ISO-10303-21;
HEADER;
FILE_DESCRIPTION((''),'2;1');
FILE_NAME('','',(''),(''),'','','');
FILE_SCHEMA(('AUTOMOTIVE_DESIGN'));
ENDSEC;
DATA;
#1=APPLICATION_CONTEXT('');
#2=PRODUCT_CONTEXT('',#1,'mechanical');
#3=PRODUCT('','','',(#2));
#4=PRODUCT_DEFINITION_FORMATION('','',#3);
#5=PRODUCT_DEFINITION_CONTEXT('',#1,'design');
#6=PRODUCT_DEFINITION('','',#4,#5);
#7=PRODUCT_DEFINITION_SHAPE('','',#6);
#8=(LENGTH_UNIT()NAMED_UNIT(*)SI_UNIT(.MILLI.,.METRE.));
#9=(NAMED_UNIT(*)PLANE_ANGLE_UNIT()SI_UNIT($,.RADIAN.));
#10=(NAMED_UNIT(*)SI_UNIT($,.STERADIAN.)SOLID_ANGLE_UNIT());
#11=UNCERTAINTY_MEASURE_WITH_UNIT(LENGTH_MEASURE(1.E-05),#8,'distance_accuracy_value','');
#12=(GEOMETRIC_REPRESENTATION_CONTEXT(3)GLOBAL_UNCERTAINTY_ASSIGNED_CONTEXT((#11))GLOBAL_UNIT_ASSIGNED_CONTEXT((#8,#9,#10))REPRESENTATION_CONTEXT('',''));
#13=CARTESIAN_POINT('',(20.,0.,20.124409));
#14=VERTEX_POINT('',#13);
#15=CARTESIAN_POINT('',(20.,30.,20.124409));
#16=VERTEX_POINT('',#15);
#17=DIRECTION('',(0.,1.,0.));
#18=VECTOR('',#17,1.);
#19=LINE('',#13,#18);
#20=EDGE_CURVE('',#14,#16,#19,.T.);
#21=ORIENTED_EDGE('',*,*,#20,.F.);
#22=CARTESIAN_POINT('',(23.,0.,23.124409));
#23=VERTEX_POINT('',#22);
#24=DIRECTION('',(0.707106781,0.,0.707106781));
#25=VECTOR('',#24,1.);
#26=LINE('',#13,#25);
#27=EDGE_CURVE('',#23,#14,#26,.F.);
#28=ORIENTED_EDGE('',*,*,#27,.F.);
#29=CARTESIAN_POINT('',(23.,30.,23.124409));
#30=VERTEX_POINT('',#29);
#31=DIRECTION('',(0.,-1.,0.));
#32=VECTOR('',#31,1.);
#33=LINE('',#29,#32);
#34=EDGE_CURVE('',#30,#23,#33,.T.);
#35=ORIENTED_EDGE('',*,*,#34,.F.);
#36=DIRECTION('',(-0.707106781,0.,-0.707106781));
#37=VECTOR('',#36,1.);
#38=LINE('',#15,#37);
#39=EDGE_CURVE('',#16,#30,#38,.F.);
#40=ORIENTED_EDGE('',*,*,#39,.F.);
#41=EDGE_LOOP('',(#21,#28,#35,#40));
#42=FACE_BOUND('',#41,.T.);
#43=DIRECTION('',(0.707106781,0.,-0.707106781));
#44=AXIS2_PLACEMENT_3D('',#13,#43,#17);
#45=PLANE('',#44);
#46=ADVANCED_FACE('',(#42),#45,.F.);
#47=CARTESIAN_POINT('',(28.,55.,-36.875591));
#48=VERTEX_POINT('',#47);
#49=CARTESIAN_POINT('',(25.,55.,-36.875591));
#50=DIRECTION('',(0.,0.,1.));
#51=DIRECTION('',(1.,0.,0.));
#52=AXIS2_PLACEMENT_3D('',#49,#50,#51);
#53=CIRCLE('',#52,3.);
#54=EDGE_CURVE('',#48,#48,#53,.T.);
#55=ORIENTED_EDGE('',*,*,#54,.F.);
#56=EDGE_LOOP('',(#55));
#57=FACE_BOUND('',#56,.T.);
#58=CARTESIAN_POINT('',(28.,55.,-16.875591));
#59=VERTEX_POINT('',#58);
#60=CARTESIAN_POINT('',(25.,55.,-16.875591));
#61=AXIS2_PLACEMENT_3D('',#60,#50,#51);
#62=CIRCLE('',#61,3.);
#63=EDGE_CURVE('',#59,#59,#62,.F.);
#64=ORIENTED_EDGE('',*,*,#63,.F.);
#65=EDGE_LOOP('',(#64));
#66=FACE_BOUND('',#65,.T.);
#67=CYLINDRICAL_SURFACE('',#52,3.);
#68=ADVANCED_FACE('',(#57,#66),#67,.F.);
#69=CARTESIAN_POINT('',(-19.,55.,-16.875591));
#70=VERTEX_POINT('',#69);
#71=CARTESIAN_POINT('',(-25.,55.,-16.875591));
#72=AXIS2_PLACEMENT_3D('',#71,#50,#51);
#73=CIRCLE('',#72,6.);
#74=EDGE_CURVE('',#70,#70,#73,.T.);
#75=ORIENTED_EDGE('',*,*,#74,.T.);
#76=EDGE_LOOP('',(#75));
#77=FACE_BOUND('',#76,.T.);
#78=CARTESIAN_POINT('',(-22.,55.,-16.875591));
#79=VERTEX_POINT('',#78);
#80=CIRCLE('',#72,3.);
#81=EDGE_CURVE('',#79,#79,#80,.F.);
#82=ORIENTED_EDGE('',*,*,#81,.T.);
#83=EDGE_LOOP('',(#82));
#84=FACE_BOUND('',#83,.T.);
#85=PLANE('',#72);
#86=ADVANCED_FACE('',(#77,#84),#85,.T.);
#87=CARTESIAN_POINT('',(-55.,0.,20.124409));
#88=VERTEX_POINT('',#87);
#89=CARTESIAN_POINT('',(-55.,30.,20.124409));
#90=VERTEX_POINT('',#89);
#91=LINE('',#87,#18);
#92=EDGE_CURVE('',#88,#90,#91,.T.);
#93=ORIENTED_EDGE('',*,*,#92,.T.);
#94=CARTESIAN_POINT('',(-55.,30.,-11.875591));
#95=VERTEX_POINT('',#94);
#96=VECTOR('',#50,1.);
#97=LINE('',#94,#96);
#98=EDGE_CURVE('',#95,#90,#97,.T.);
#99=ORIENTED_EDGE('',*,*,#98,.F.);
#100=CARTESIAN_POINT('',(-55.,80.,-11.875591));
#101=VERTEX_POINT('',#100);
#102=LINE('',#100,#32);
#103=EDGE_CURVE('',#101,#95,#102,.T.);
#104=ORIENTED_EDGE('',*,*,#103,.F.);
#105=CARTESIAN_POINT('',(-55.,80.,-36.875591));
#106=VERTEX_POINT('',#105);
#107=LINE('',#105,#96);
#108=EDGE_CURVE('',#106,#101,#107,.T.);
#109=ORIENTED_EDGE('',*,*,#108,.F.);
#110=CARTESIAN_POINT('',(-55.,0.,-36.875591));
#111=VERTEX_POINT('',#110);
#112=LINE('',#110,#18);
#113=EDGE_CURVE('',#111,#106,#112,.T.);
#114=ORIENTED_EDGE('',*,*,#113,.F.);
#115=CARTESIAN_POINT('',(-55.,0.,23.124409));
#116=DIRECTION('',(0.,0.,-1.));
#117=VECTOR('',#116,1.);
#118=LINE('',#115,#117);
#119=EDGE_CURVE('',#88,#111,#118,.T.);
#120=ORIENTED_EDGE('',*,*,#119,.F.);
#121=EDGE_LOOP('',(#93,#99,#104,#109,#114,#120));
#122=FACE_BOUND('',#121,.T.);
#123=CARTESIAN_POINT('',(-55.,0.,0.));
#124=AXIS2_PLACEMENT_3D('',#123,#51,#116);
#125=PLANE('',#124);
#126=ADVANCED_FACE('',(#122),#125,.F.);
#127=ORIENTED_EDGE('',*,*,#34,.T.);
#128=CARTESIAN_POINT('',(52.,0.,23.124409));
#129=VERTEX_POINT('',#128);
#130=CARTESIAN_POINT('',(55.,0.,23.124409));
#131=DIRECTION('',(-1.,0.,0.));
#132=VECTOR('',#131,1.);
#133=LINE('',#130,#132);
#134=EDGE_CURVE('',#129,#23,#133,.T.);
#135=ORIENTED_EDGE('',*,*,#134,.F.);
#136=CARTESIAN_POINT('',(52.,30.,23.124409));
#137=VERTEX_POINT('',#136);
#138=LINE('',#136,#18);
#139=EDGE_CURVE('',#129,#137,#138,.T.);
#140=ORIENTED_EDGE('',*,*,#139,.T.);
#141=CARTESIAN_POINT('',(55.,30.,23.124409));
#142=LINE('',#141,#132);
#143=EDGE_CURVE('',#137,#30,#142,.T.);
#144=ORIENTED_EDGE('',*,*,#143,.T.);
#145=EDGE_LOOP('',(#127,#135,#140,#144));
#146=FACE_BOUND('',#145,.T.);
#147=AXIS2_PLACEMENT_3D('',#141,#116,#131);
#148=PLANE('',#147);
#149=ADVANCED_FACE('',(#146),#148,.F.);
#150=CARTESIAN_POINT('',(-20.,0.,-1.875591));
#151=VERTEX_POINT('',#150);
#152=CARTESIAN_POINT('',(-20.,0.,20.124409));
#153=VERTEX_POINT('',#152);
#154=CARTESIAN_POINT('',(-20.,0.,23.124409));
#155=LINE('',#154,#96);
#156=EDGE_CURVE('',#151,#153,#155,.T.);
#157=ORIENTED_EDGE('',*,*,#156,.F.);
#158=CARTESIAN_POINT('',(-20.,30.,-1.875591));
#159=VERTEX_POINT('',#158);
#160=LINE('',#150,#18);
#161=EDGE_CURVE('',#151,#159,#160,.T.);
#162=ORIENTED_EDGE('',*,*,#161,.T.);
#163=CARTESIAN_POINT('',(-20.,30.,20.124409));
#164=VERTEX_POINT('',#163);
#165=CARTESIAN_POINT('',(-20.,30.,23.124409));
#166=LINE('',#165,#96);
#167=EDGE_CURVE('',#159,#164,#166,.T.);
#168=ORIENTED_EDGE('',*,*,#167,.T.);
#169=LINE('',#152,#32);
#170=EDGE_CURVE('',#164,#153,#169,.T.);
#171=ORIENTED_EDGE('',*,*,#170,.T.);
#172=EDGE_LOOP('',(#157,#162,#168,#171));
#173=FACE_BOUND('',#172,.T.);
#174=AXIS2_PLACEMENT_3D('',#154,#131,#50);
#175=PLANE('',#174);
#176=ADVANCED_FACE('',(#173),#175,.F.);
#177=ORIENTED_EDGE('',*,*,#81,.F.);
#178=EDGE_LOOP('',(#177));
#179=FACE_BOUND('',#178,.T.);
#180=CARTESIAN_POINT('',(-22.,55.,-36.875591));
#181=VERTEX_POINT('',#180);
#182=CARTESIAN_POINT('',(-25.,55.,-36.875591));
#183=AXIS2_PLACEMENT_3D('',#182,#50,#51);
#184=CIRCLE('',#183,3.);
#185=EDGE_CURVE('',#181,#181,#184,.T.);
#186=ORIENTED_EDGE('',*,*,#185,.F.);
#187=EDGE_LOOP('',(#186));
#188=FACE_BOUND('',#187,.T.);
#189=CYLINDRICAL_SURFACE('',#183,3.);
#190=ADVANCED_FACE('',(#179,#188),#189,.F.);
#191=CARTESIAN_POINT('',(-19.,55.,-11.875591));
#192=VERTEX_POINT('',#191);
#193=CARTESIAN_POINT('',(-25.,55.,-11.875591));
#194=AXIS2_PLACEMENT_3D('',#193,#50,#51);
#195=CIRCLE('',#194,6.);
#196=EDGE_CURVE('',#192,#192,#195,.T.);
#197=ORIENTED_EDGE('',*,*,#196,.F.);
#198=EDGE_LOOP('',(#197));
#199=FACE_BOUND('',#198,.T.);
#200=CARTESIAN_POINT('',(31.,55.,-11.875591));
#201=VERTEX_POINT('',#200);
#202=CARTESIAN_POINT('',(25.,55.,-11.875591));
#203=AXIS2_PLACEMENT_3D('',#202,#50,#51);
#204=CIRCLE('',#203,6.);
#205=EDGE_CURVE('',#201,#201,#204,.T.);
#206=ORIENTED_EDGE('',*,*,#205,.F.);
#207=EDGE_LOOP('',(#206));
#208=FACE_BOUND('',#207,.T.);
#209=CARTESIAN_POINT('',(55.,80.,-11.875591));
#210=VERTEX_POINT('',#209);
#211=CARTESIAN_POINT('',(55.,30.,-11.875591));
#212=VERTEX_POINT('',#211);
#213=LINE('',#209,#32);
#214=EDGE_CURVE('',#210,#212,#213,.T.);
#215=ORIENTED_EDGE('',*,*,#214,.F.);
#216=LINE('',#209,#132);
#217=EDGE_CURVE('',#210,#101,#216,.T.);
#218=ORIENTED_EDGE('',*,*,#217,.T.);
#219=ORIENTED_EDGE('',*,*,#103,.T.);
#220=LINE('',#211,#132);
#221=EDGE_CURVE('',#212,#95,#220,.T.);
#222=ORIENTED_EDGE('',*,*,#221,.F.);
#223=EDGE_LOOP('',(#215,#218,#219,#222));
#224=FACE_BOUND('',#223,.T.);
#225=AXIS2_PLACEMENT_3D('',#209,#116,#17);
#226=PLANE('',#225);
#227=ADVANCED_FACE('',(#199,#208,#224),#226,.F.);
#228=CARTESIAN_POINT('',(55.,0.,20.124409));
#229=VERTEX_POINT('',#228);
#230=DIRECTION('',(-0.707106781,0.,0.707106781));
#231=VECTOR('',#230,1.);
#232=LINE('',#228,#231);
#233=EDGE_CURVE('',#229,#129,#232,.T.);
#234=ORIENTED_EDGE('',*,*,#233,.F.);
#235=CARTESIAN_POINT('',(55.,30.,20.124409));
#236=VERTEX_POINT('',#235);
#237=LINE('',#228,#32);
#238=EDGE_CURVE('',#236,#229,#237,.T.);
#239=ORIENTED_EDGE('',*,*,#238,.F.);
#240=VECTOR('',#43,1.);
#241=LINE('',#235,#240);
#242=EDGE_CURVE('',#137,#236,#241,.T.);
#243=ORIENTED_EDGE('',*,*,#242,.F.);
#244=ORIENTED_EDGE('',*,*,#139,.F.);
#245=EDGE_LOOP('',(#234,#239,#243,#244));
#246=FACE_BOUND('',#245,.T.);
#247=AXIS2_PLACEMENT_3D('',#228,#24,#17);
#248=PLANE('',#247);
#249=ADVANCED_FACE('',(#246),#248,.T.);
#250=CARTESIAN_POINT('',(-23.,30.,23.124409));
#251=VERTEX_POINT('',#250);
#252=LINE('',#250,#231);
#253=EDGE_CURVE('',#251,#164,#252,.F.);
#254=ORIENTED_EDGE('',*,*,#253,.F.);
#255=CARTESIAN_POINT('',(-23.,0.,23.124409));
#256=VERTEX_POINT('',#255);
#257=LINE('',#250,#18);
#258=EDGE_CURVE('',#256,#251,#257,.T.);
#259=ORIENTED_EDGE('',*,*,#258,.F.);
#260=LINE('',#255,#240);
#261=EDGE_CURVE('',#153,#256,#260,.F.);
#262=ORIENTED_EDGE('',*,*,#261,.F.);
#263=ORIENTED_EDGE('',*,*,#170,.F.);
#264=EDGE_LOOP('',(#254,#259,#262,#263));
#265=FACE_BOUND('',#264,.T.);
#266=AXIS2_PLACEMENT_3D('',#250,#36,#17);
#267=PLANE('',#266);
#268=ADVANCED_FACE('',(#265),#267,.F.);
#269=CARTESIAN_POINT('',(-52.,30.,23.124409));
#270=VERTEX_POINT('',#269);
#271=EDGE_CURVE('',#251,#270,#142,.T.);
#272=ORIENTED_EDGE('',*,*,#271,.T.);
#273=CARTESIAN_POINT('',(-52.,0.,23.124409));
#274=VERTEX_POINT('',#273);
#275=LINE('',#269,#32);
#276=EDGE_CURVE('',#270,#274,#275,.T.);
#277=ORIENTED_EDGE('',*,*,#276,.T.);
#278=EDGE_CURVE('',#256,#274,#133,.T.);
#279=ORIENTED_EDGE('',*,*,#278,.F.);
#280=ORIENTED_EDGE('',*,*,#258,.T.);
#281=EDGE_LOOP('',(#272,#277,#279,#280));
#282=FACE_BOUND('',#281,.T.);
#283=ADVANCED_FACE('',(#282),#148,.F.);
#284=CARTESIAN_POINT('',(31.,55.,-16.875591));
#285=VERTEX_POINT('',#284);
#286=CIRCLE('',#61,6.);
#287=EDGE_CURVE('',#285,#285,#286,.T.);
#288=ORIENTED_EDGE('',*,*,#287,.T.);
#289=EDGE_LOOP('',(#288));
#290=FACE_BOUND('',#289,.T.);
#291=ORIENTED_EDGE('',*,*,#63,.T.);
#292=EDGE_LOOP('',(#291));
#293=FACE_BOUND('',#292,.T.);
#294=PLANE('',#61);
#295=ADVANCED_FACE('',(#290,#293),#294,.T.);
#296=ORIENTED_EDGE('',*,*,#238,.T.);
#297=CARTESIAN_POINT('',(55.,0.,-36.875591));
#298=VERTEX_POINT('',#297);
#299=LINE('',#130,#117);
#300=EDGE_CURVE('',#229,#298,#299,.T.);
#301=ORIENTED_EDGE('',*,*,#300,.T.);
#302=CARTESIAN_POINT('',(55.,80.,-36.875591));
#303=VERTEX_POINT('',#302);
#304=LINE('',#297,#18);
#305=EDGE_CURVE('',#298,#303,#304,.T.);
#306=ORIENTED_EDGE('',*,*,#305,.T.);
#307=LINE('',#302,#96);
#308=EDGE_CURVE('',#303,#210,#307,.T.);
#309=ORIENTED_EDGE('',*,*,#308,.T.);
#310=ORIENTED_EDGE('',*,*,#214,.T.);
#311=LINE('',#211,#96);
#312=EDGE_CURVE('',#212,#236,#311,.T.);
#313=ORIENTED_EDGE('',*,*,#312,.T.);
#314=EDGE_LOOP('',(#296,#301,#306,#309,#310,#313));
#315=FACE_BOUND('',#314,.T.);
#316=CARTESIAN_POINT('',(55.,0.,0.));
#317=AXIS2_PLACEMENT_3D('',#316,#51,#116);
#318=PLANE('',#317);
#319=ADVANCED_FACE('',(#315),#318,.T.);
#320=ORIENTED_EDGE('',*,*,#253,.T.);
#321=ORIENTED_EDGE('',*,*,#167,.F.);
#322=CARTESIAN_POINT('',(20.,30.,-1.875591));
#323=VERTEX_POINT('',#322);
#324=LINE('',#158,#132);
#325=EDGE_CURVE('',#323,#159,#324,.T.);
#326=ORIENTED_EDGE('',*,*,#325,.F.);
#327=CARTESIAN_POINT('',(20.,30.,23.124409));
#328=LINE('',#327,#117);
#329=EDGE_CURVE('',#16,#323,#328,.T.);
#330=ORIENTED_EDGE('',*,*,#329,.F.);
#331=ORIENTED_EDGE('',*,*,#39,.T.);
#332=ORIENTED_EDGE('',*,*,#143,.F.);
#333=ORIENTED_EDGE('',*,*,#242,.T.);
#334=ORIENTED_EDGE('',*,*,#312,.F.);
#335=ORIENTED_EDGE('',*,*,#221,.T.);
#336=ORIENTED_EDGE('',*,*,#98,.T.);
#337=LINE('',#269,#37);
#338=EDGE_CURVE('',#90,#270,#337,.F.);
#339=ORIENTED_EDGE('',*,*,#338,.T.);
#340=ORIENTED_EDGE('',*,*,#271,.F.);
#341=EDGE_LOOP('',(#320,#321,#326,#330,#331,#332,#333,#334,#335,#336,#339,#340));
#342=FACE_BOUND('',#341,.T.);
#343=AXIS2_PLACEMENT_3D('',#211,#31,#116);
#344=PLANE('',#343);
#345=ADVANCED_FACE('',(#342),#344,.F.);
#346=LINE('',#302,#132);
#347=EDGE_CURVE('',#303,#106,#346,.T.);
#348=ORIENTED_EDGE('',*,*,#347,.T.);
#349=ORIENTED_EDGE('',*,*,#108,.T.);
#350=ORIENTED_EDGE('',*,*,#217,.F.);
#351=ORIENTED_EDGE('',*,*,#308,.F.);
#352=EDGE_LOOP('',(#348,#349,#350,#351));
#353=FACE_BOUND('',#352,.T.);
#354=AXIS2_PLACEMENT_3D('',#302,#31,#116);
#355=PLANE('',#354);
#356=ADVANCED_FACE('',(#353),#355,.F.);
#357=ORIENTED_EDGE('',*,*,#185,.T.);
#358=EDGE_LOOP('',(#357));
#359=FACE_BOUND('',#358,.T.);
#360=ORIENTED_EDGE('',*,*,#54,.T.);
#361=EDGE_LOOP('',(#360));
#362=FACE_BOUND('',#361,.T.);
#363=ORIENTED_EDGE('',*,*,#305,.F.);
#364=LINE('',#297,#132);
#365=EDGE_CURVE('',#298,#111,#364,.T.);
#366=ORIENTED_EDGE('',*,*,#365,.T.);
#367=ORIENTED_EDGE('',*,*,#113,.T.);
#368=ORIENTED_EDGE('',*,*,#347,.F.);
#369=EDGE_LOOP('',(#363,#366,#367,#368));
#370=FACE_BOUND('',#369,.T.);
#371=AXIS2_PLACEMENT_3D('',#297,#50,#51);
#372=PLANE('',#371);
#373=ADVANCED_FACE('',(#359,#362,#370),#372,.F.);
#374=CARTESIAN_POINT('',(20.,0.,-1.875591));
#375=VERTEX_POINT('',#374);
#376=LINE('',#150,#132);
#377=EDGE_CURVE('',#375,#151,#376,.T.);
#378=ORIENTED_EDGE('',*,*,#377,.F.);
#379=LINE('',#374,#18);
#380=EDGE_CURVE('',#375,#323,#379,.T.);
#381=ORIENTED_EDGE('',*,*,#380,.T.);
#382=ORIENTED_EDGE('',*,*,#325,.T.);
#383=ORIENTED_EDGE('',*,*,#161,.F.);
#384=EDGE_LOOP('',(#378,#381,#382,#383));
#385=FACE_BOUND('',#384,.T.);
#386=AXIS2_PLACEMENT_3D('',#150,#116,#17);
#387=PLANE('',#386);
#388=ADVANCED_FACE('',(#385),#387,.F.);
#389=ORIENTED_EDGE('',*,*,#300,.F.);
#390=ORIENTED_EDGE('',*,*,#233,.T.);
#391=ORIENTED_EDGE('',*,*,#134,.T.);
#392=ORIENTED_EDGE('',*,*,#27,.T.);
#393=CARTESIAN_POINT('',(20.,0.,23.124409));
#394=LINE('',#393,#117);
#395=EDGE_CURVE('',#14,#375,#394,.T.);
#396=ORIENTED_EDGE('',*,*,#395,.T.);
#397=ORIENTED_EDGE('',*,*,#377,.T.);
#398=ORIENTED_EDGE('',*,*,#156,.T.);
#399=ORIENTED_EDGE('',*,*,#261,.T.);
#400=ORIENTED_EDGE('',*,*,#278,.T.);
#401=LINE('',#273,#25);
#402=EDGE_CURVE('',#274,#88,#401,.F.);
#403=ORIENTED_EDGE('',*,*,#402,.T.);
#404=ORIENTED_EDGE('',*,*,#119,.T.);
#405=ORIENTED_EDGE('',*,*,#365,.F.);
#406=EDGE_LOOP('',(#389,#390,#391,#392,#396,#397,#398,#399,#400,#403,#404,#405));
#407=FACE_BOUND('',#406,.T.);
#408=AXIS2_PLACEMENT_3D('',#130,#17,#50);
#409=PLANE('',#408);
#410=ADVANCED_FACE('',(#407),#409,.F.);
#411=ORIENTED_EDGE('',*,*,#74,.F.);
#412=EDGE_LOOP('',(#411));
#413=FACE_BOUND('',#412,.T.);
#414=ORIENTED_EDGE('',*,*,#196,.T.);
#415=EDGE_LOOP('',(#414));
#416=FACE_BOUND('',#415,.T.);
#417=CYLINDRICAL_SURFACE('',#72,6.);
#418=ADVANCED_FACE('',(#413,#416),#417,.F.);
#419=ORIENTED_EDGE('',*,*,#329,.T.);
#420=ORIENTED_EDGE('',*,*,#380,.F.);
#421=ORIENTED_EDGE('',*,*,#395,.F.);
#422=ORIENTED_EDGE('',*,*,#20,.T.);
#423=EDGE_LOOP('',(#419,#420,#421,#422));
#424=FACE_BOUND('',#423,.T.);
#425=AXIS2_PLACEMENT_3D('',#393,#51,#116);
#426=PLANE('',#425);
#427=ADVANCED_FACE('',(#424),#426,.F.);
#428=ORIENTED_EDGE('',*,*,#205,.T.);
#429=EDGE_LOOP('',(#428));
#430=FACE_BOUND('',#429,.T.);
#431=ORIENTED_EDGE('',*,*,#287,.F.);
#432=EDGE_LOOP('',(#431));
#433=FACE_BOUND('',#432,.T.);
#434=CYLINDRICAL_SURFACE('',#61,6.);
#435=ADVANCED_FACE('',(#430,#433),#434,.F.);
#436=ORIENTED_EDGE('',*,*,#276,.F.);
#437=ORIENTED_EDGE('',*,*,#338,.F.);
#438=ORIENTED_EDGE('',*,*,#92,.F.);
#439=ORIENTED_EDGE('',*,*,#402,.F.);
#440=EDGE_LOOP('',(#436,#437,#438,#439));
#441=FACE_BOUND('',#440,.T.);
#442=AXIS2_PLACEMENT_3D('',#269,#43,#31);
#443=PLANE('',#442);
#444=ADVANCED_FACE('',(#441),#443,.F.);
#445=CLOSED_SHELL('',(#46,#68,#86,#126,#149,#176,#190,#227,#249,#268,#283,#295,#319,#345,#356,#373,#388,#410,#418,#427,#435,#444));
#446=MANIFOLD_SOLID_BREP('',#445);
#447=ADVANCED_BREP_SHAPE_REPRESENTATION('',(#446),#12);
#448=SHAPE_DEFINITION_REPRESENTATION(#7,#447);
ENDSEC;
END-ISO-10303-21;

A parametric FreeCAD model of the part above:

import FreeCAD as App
import Part
import Sketcher
from FreeCAD import Vector


def edges_at(feature, points):
    """Names of the edges that pass closest to the given points."""
    edges = feature.Shape.Edges
    near = lambda p: min(range(len(edges)), key=lambda i: edges[i].distToShape(Part.Vertex(*p))[0])
    return sorted({f"Edge{near(p) + 1}" for p in points})


def add_polygon(sketch, points):
    """Adds a closed chain of lines whose ends are joined by coincident constraints."""
    first, n = sketch.GeometryCount, len(points)
    for a, b in zip(points, points[1:] + points[:1]):
        sketch.addGeometry(Part.LineSegment(App.Vector(*a, 0), App.Vector(*b, 0)), False)
    for i in range(n):
        sketch.addConstraint(Sketcher.Constraint("Coincident", first + i, 2, first + (i + 1) % n, 1))

doc = App.newDocument("Part")
params = doc.addObject("Spreadsheet::Sheet", "Params")
for row, (alias, value) in enumerate([
    ("sketch1_width", "80 mm"),
    ("sketch1_width2", "50 mm"),
    ("sketch1_height", "60 mm"),
    ("sketch1_height2", "25 mm"),
    ("pad1_length", "110 mm"),
    ("sketch2_width", "40 mm"),
    ("sketch2_height", "25 mm"),
    ("sketch3_diameter", "6 mm"),
    ("sketch4_diameter", "12 mm"),
    ("pocket3_length", "5 mm"),
    ("chamfer_size", "3 mm"),
], start=1):
    params.set(f"A{row}", alias)
    params.set(f"B{row}", "=" + value)
    params.setAlias(f"B{row}", alias)

body = doc.addObject("PartDesign::Body", "Body")

sketch1 = body.newObject("Sketcher::SketchObject", "Sketch")
sketch1.AttachmentSupport = (doc.getObject("YZ_Plane"), [""])
sketch1.MapMode = "FlatFace"
add_polygon(sketch1, [(0, 23.124409), (0, -36.875591), (80, -36.875591), (80, -11.875591), (30, -11.875591), (30, 23.124409)])
sketch1.addConstraint([
    Sketcher.Constraint("Vertical", 0),
    Sketcher.Constraint("Horizontal", 1),
    Sketcher.Constraint("Vertical", 2),
    Sketcher.Constraint("Horizontal", 3),
    Sketcher.Constraint("Vertical", 4),
    Sketcher.Constraint("Horizontal", 5),
    Sketcher.Constraint("PointOnObject", 0, 2, -2),
    Sketcher.Constraint("DistanceX", 1, 1, 1, 2, 80.0),
    Sketcher.Constraint("DistanceX", 3, 2, 3, 1, 50.0),
    Sketcher.Constraint("DistanceY", 0, 2, 0, 1, 60.0),
    Sketcher.Constraint("DistanceY", 2, 1, 2, 2, 25.0),
    Sketcher.Constraint("DistanceY", 0, 2, -1, 1, 36.875591),
])
sketch1.setExpression("Constraints[13]", "Params.sketch1_width")
sketch1.setExpression("Constraints[14]", "Params.sketch1_width2")
sketch1.setExpression("Constraints[15]", "Params.sketch1_height")
sketch1.setExpression("Constraints[16]", "Params.sketch1_height2")
pad1 = body.newObject("PartDesign::Pad", "Pad")
pad1.Profile = sketch1
pad1.setExpression("Length", "Params.pad1_length")
pad1.Midplane = True

sketch2 = body.newObject("Sketcher::SketchObject", "Sketch001")
sketch2.AttachmentSupport = (doc.getObject("XZ_Plane"), [""])
sketch2.MapMode = "FlatFace"
sketch2.AttachmentOffset = App.Placement(Vector(0, 0, -30), App.Rotation())
add_polygon(sketch2, [(-20, -1.875591), (-20, 23.124409), (20, 23.124409), (20, -1.875591)])
sketch2.addConstraint([
    Sketcher.Constraint("Vertical", 0),
    Sketcher.Constraint("Horizontal", 1),
    Sketcher.Constraint("Vertical", 2),
    Sketcher.Constraint("Horizontal", 3),
    Sketcher.Constraint("DistanceX", 1, 1, 1, 2, 40.0),
    Sketcher.Constraint("DistanceY", 0, 1, 0, 2, 25.0),
    Sketcher.Constraint("DistanceX", 0, 2, -1, 1, 20.0),
    Sketcher.Constraint("DistanceY", -1, 1, 0, 2, 23.124409),
])
sketch2.setExpression("Constraints[8]", "Params.sketch2_width")
sketch2.setExpression("Constraints[9]", "Params.sketch2_height")
pocket1 = body.newObject("PartDesign::Pocket", "Pocket")
pocket1.Profile = sketch2
pocket1.Type = "ThroughAll"
pocket1.Reversed = True

sketch3 = body.newObject("Sketcher::SketchObject", "Sketch002")
sketch3.AttachmentSupport = (doc.getObject("XY_Plane"), [""])
sketch3.MapMode = "FlatFace"
sketch3.AttachmentOffset = App.Placement(Vector(0, 0, -11.875591), App.Rotation())
sketch3.addGeometry([
    Part.Circle(Vector(-25, 55, 0), Vector(0, 0, 1), 3),
    Part.Circle(Vector(25, 55, 0), Vector(0, 0, 1), 3),
], False)
sketch3.addConstraint([
    Sketcher.Constraint("Equal", 0, 1),
    Sketcher.Constraint("Symmetric", 0, 3, 1, 3, -2),
    Sketcher.Constraint("Diameter", 0, 6.0),
    Sketcher.Constraint("DistanceX", 0, 3, -1, 1, 25.0),
    Sketcher.Constraint("DistanceY", -1, 1, 0, 3, 55.0),
])
sketch3.setExpression("Constraints[2]", "Params.sketch3_diameter")
pocket2 = body.newObject("PartDesign::Pocket", "Pocket001")
pocket2.Profile = sketch3
pocket2.Type = "ThroughAll"

sketch4 = body.newObject("Sketcher::SketchObject", "Sketch003")
sketch4.AttachmentSupport = (doc.getObject("XY_Plane"), [""])
sketch4.MapMode = "FlatFace"
sketch4.AttachmentOffset = App.Placement(Vector(0, 0, -11.875591), App.Rotation())
sketch4.addGeometry([
    Part.Circle(Vector(-25, 55, 0), Vector(0, 0, 1), 6),
    Part.Circle(Vector(25, 55, 0), Vector(0, 0, 1), 6),
], False)
sketch4.addConstraint([
    Sketcher.Constraint("Equal", 0, 1),
    Sketcher.Constraint("Symmetric", 0, 3, 1, 3, -2),
    Sketcher.Constraint("Diameter", 0, 12.0),
    Sketcher.Constraint("DistanceX", 0, 3, -1, 1, 25.0),
    Sketcher.Constraint("DistanceY", -1, 1, 0, 3, 55.0),
])
sketch4.setExpression("Constraints[2]", "Params.sketch4_diameter")
pocket3 = body.newObject("PartDesign::Pocket", "Pocket002")
pocket3.Profile = sketch4
pocket3.setExpression("Length", "Params.pocket3_length")
doc.recompute()

chamfer = body.newObject("PartDesign::Chamfer", "Chamfer")
chamfer.Base = (pocket3, edges_at(pocket3, [
    (-20, 15, 23.124),
    (20, 15, 23.124),
    (55, 15, 23.124),
    (-55, 15, 23.124),
]))
chamfer.setExpression("Size", "Params.chamfer_size")

doc.recompute()
